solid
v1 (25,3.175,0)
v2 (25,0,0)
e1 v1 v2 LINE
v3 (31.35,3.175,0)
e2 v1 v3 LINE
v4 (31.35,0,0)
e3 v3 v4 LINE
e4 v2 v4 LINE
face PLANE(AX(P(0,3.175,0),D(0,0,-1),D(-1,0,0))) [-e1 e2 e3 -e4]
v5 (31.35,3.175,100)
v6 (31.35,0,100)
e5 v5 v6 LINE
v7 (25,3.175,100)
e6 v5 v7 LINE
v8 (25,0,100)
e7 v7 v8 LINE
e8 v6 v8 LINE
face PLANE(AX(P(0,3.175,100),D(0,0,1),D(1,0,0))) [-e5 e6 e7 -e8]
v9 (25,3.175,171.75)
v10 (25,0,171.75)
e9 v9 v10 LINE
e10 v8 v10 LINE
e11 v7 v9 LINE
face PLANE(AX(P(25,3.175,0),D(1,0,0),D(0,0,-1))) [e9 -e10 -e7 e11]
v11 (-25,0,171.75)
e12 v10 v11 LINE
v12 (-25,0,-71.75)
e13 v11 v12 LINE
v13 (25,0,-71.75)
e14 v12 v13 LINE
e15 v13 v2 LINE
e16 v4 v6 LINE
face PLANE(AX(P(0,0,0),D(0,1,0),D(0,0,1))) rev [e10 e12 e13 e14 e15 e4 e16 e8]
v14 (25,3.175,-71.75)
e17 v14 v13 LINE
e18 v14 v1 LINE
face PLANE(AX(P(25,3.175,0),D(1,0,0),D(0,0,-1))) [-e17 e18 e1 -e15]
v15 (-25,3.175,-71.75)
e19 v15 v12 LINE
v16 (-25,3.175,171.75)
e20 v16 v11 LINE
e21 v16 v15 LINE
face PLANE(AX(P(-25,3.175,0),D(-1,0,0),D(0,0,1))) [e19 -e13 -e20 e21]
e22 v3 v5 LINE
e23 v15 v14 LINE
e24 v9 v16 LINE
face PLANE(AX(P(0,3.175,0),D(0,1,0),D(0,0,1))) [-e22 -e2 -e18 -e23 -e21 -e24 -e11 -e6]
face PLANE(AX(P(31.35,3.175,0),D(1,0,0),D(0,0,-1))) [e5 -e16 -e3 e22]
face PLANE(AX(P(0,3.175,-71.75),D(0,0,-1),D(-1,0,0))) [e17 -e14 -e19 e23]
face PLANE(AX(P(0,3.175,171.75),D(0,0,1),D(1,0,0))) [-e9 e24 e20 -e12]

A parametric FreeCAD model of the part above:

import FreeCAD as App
import Part
import Sketcher

V = App.Vector
Q = App.Units.Quantity

doc = App.newDocument("Part")
body = doc.addObject("PartDesign::Body", "Body")

# Sketch on XZ plane
sketch1 = body.newObject("Sketcher::SketchObject", "Sketch")
sketch1.AttachmentSupport = (doc.getObject("XZ_Plane"), [""])
sketch1.MapMode = "FlatFace"
sketch1.addGeometry([
    Part.LineSegment(V(-25, -72, 0), V(-25, 172, 0)),  # 0
    Part.LineSegment(V(-25, 172, 0), V(25, 172, 0)),  # 1
    Part.LineSegment(V(25, 172, 0), V(25, 100, 0)),  # 2
    Part.LineSegment(V(25, 100, 0), V(31, 100, 0)),  # 3
    Part.LineSegment(V(31, 100, 0), V(31, 0, 0)),  # 4
    Part.LineSegment(V(31, 0, 0), V(25, 0, 0)),  # 5
    Part.LineSegment(V(25, 0, 0), V(25, -72, 0)),  # 6
    Part.LineSegment(V(25, -72, 0), V(-25, -72, 0)),  # 7
], False)
sketch1.addConstraint([
    Sketcher.Constraint("Coincident", 0, 2, 1, 1),
    Sketcher.Constraint("Coincident", 1, 2, 2, 1),
    Sketcher.Constraint("Coincident", 2, 2, 3, 1),
    Sketcher.Constraint("Coincident", 3, 2, 4, 1),
    Sketcher.Constraint("Coincident", 4, 2, 5, 1),
    Sketcher.Constraint("Coincident", 5, 2, 6, 1),
    Sketcher.Constraint("Coincident", 6, 2, 7, 1),
    Sketcher.Constraint("Coincident", 7, 2, 0, 1),
    Sketcher.Constraint("Vertical", 0),
    Sketcher.Constraint("Horizontal", 1),
    Sketcher.Constraint("Vertical", 2),
    Sketcher.Constraint("Horizontal", 3),
    Sketcher.Constraint("Vertical", 4),
    Sketcher.Constraint("Horizontal", 5),
    Sketcher.Constraint("Vertical", 6),
    Sketcher.Constraint("Horizontal", 7),
    Sketcher.Constraint("PointOnObject", 4, 2, -1),
    Sketcher.Constraint("Vertical", 2, 2, 5, 2),
    Sketcher.Constraint("Equal", 2, 6),
    Sketcher.Constraint("DistanceX", 1, 1, 1, 2, Q("50 mm")),
    Sketcher.Constraint("DistanceY", 4, 2, 4, 1, Q("100 mm")),
    Sketcher.Constraint("DistanceY", 0, 1, 0, 2, Q("243.5 mm")),
    Sketcher.Constraint("DistanceX", 0, 2, -1, 1, Q("25 mm")),
    Sketcher.Constraint("DistanceX", 3, 1, 3, 2, Q("6.35 mm")),
])
pad1 = body.newObject("PartDesign::Pad", "Pad")
pad1.Profile = sketch1
pad1.Length = 3.175
pad1.Reversed = True

doc.recompute()
